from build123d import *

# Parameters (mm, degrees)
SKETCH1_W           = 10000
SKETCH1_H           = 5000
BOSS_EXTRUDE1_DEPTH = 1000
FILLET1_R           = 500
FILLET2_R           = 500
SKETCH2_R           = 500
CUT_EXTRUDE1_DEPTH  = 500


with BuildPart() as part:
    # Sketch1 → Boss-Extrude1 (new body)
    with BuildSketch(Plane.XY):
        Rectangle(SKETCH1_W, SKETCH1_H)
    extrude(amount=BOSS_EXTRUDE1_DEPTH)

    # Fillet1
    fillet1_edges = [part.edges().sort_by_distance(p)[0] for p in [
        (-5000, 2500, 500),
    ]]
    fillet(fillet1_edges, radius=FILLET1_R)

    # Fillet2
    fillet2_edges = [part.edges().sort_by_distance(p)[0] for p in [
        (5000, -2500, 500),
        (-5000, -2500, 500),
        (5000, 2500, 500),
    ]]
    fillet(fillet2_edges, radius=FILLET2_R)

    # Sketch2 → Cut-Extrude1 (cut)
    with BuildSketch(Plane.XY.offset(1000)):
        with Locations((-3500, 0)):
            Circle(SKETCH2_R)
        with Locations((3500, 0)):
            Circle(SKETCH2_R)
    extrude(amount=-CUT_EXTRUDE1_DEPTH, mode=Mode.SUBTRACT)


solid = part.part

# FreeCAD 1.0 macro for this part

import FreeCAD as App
import Part
import Sketcher


def edges_at(feature, points):
    """Names of the edges that pass closest to the given points."""
    edges = feature.Shape.Edges
    near = lambda p: min(range(len(edges)), key=lambda i: edges[i].distToShape(Part.Vertex(*p))[0])
    return sorted({f"Edge{near(p) + 1}" for p in points})

doc = App.newDocument("Part")
body = doc.addObject("PartDesign::Body", "Body")

sketch1 = body.newObject("Sketcher::SketchObject", "Sketch")
sketch1.AttachmentSupport = (doc.getObject("XY_Plane"), [""])
sketch1.MapMode = "FlatFace"
sketch1.addGeometry(Part.LineSegment(App.Vector(-5000, 2500, 0), App.Vector(-5000, -2500, 0)), False)
sketch1.addGeometry(Part.LineSegment(App.Vector(-5000, -2500, 0), App.Vector(5000, -2500, 0)), False)
sketch1.addGeometry(Part.LineSegment(App.Vector(5000, -2500, 0), App.Vector(5000, 2500, 0)), False)
sketch1.addGeometry(Part.LineSegment(App.Vector(5000, 2500, 0), App.Vector(-5000, 2500, 0)), False)
sketch1.addConstraint(Sketcher.Constraint("Coincident", 0, 2, 1, 1))
sketch1.addConstraint(Sketcher.Constraint("Coincident", 1, 2, 2, 1))
sketch1.addConstraint(Sketcher.Constraint("Coincident", 2, 2, 3, 1))
sketch1.addConstraint(Sketcher.Constraint("Coincident", 3, 2, 0, 1))
sketch1.addConstraint(Sketcher.Constraint("Vertical", 0))
sketch1.addConstraint(Sketcher.Constraint("Horizontal", 1))
sketch1.addConstraint(Sketcher.Constraint("Vertical", 2))
sketch1.addConstraint(Sketcher.Constraint("Horizontal", 3))
sketch1.addConstraint(Sketcher.Constraint("Symmetric", 0, 2, 2, 2, -1, 1))
sketch1.addConstraint(Sketcher.Constraint("DistanceX", 1, 1, 1, 2, 10000.0))
sketch1.addConstraint(Sketcher.Constraint("DistanceY", 0, 2, 0, 1, 5000.0))
pad1 = body.newObject("PartDesign::Pad", "Pad")
pad1.Profile = sketch1
pad1.Length = 1000
doc.recompute()

fillet = body.newObject("PartDesign::Fillet", "Fillet")
fillet.Base = (pad1, edges_at(pad1, [(-5000, 2500, 500)]))
fillet.Radius = 500
doc.recompute()

fillet2 = body.newObject("PartDesign::Fillet", "Fillet001")
fillet2.Base = (fillet, edges_at(fillet, [(5000, -2500, 500), (-5000, -2500, 500), (5000, 2500, 500)]))
fillet2.Radius = 500

sketch2 = body.newObject("Sketcher::SketchObject", "Sketch001")
sketch2.AttachmentSupport = (doc.getObject("XY_Plane"), [""])
sketch2.MapMode = "FlatFace"
sketch2.AttachmentOffset = App.Placement(App.Vector(0, 0, 1000), App.Rotation())
sketch2.addGeometry(Part.Circle(App.Vector(-3500, 0, 0), App.Vector(0, 0, 1), 500), False)
sketch2.addGeometry(Part.Circle(App.Vector(3500, 0, 0), App.Vector(0, 0, 1), 500), False)
sketch2.addConstraint(Sketcher.Constraint("Equal", 0, 1))
sketch2.addConstraint(Sketcher.Constraint("Symmetric", 0, 3, 1, 3, -1, 1))
sketch2.addConstraint(Sketcher.Constraint("PointOnObject", 0, 3, -1))
sketch2.addConstraint(Sketcher.Constraint("Diameter", 0, 1000.0))
sketch2.addConstraint(Sketcher.Constraint("DistanceX", 0, 3, -1, 1, 3500.0))
pocket1 = body.newObject("PartDesign::Pocket", "Pocket")
pocket1.Profile = sketch2
pocket1.Length = 500

doc.recompute()
